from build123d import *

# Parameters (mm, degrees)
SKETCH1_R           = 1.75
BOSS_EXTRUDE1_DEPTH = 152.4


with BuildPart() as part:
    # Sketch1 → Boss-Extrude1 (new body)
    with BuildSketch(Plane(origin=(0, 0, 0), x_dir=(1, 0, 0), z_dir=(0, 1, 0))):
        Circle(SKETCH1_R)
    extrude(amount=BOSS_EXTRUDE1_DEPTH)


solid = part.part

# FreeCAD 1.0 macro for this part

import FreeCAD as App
import Part
import Sketcher
from FreeCAD import Vector

doc = App.newDocument("Part")
body = doc.addObject("PartDesign::Body", "Body")

# Sketch on XZ plane
sketch1 = doc.addObject("Sketcher::SketchObject", "Sketch")
body.addObject(sketch1)
sketch1.AttachmentSupport = (doc.XZ_Plane, [""])
sketch1.MapMode = "FlatFace"
sketch1.addGeometry(Part.Circle(Vector(0, 0, 0), Vector(0, 0, 1), 1.8), False)
sketch1.addConstraint([
    Sketcher.Constraint("Coincident", 0, 3, -1, 1),
    Sketcher.Constraint("Diameter", 0, 3.5),
])
pad1 = doc.addObject("PartDesign::Pad", "Pad")
body.addObject(pad1)
pad1.Profile = sketch1
pad1.Length = 152.4
pad1.Reversed = True

doc.recompute()
